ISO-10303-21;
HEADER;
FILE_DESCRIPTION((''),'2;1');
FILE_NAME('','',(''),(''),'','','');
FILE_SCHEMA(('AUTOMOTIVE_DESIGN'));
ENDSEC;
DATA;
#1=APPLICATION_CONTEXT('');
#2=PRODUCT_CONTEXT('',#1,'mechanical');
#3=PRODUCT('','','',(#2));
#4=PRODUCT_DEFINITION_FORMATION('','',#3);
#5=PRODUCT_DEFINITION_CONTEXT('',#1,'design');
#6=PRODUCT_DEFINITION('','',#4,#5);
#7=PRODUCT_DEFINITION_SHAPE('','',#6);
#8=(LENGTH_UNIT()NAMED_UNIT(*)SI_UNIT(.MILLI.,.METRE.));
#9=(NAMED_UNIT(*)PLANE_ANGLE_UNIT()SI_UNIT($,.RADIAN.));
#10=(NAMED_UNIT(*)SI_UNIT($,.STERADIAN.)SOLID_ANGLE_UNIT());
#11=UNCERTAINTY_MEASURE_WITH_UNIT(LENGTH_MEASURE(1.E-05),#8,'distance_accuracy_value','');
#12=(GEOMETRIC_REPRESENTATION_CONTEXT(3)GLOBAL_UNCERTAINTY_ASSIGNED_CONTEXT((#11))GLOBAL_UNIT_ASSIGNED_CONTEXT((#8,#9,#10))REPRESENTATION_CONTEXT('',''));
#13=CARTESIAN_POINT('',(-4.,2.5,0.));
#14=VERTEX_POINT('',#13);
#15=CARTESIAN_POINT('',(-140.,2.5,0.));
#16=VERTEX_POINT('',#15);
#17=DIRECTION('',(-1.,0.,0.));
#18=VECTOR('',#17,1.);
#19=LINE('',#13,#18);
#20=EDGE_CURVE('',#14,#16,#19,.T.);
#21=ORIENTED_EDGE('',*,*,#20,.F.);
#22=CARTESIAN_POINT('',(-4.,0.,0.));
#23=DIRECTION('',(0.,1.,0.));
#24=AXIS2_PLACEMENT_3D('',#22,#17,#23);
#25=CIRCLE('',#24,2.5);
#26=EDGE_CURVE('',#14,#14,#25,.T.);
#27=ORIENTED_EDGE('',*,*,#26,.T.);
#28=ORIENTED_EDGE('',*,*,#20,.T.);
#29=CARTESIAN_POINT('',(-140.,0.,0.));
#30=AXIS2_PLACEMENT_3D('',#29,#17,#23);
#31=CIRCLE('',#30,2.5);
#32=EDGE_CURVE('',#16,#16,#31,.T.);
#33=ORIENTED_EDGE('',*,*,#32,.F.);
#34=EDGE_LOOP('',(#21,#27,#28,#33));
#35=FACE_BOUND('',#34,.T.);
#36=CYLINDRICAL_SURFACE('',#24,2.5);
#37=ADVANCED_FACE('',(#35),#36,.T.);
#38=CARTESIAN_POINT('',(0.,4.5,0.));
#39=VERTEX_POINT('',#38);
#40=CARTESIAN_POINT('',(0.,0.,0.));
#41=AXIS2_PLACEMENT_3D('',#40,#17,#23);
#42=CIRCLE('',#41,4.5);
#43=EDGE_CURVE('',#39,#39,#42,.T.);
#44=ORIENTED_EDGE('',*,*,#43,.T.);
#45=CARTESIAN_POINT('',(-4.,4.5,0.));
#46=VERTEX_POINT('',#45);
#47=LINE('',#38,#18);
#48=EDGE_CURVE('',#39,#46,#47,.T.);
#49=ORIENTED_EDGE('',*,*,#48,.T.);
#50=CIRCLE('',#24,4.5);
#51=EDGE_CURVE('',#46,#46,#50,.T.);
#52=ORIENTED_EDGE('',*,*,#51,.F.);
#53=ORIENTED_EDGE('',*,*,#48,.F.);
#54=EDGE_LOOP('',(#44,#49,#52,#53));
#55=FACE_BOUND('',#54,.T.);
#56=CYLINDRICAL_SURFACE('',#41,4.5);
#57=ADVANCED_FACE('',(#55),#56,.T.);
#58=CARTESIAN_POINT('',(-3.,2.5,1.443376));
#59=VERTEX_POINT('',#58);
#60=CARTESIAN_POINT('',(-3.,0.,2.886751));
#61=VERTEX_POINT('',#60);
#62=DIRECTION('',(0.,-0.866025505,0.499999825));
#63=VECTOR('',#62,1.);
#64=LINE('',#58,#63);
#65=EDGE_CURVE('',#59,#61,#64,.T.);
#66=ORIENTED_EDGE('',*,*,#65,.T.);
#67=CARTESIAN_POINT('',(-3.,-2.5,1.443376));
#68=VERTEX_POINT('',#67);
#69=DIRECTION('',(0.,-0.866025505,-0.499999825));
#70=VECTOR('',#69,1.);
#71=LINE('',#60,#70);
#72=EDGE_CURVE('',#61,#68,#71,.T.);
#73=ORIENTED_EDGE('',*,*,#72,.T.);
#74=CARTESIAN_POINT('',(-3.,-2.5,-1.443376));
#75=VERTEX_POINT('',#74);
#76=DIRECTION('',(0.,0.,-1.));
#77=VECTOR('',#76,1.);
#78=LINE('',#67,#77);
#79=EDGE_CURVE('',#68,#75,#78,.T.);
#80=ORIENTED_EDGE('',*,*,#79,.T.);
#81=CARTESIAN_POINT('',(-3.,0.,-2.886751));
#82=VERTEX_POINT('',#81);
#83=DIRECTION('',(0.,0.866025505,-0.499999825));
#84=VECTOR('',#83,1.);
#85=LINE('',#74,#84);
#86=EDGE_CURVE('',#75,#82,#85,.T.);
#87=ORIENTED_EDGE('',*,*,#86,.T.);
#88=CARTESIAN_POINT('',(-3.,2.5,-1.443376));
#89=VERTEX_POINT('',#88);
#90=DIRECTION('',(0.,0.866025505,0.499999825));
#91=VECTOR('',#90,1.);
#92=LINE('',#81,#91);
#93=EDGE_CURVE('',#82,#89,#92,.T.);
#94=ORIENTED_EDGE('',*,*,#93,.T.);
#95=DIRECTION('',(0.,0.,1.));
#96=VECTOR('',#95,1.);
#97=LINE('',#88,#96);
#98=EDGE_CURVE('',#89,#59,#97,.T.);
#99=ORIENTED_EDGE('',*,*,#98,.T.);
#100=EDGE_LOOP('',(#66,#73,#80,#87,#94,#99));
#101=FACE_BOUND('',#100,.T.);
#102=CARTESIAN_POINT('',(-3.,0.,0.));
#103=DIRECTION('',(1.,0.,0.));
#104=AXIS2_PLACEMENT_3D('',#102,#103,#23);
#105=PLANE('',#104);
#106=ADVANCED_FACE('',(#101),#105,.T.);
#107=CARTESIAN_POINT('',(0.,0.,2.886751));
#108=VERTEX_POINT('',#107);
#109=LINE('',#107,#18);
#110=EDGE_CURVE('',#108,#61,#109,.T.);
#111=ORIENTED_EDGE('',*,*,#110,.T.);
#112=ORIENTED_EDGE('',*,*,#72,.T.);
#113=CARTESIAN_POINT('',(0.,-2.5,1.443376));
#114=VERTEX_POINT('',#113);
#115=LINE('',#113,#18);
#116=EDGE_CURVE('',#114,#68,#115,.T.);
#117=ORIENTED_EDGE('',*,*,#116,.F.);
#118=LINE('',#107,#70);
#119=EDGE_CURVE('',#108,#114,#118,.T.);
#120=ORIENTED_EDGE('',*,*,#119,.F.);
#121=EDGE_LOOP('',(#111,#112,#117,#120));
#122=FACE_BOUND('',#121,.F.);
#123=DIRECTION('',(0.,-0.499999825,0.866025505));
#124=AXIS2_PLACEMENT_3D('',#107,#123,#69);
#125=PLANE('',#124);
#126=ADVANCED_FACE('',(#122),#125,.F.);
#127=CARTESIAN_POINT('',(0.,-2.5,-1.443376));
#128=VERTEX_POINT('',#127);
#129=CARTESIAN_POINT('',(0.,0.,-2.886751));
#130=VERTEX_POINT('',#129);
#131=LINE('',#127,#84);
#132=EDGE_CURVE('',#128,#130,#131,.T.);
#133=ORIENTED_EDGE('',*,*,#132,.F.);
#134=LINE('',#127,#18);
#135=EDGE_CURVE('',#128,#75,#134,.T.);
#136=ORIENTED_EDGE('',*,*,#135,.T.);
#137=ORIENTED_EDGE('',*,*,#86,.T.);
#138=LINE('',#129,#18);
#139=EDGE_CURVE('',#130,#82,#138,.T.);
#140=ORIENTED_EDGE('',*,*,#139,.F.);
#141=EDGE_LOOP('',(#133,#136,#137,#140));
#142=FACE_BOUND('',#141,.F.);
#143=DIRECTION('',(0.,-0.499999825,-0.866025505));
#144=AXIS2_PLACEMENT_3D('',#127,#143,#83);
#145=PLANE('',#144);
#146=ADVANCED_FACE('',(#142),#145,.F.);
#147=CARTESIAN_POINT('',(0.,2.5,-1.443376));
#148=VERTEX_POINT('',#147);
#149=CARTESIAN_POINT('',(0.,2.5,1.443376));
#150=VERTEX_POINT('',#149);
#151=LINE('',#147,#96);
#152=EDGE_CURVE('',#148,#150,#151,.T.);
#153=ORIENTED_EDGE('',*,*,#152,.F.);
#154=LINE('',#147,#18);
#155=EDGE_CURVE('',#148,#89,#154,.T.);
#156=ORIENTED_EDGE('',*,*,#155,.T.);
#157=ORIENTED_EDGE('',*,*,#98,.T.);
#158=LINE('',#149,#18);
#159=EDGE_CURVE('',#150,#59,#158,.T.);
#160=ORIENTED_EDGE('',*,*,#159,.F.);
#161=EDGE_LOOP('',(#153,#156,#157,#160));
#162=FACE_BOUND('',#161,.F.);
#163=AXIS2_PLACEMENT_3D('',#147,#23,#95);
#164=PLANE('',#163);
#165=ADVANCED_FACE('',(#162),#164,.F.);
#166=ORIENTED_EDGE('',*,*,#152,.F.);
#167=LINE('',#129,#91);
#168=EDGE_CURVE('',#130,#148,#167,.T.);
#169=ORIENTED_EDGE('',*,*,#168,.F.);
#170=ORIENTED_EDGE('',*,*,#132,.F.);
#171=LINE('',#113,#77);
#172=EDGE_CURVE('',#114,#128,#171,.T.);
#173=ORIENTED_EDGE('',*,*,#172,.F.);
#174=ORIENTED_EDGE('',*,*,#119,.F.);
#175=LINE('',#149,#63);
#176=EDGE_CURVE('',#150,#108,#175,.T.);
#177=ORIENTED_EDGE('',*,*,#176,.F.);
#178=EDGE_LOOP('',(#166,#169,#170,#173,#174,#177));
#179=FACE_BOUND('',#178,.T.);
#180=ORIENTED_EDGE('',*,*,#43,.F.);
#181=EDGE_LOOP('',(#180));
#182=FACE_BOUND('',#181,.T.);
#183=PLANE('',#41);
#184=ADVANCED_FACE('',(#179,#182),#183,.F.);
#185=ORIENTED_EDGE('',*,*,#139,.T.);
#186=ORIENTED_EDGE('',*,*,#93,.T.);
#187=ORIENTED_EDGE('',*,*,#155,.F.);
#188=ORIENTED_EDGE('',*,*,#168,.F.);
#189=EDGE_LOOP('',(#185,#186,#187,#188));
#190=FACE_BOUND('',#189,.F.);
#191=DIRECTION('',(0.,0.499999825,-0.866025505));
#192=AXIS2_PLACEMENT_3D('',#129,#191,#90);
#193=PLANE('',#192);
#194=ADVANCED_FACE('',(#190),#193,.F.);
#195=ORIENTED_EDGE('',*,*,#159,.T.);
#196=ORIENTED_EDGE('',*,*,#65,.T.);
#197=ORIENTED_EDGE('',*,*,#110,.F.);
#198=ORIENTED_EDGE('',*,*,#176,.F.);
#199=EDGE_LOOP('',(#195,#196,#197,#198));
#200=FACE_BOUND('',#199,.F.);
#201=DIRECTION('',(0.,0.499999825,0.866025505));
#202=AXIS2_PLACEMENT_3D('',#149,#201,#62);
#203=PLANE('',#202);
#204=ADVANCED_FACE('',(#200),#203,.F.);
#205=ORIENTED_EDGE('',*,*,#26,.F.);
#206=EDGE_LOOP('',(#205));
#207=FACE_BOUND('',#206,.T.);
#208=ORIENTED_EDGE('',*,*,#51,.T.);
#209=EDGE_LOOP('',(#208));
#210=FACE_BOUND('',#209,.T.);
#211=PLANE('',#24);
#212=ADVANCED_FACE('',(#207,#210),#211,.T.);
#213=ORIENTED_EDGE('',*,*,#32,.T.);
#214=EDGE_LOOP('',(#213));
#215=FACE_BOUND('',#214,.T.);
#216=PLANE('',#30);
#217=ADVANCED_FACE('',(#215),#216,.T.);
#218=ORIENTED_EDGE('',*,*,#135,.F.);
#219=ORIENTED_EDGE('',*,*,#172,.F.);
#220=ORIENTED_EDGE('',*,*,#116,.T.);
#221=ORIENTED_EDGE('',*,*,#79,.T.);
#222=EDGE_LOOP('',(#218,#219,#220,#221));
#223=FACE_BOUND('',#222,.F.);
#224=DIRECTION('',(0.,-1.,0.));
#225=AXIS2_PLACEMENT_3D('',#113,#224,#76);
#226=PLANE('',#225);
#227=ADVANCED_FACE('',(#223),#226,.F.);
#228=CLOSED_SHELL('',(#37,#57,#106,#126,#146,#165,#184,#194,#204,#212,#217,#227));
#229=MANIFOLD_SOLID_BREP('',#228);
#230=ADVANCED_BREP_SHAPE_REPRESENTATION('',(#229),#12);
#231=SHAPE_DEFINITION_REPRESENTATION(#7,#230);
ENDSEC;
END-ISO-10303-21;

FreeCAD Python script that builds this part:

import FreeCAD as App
import Part
import Sketcher
from FreeCAD import Vector
Q = App.Units.Quantity


def add_polygon(sketch, points):
    """Adds a closed chain of lines whose ends are joined by coincident constraints."""
    first, n = sketch.GeometryCount, len(points)
    for a, b in zip(points, points[1:] + points[:1]):
        sketch.addGeometry(Part.LineSegment(App.Vector(*a, 0), App.Vector(*b, 0)), False)
    for i in range(n):
        sketch.addConstraint(Sketcher.Constraint("Coincident", first + i, 2, first + (i + 1) % n, 1))

doc = App.newDocument("Part")
body = doc.addObject("PartDesign::Body", "Body")

# Sketch on XY plane
sketch1 = doc.addObject("Sketcher::SketchObject", "Sketch")
body.addObject(sketch1)
sketch1.AttachmentSupport = (doc.XY_Plane, [""])
sketch1.MapMode = "FlatFace"
add_polygon(sketch1, [(-4, 2.5), (-140, 2.5), (-140, 0), (0, 0), (0, 4.5), (-4, 4.5)])  # lines 0-5
sketch1.addConstraint(Sketcher.Constraint("Horizontal", 0))
sketch1.addConstraint(Sketcher.Constraint("Vertical", 1))
sketch1.addConstraint(Sketcher.Constraint("Horizontal", 2))
sketch1.addConstraint(Sketcher.Constraint("Vertical", 3))
sketch1.addConstraint(Sketcher.Constraint("Horizontal", 4))
sketch1.addConstraint(Sketcher.Constraint("Vertical", 5))
sketch1.addConstraint(Sketcher.Constraint("Coincident", 2, 2, -1, 1))
sketch1.addConstraint(Sketcher.Constraint("DistanceX", 0, 2, 0, 1, 136.0))
sketch1.addConstraint(Sketcher.Constraint("DistanceX", 2, 1, 2, 2, 140.0))
sketch1.addConstraint(Sketcher.Constraint("DistanceY", 5, 2, 5, 1, 2.0))
sketch1.addConstraint(Sketcher.Constraint("DistanceY", 1, 2, 1, 1, 2.5))
revolution = doc.addObject("PartDesign::Revolution", "Revolution")
body.addObject(revolution)
revolution.Profile = sketch1
revolution.ReferenceAxis = (sketch1, ["H_Axis"])
revolution.Angle = 360

# Sketch on YZ plane
sketch2 = doc.addObject("Sketcher::SketchObject", "Sketch001")
body.addObject(sketch2)
sketch2.AttachmentSupport = (doc.YZ_Plane, [""])
sketch2.MapMode = "FlatFace"
add_polygon(sketch2, [(2.5, -1.4), (2.5, 1.4), (0, 2.9), (-2.5, 1.4), (-2.5, -1.4), (0, -2.9)])  # lines 0-5
sketch2.addConstraint(Sketcher.Constraint("Vertical", 0))
sketch2.addConstraint(Sketcher.Constraint("Vertical", 3))
sketch2.addConstraint(Sketcher.Constraint("Symmetric", 0, 2, 3, 2, -1, 1))
sketch2.addConstraint(Sketcher.Constraint("Symmetric", 1, 2, 4, 2, -1, 1))
sketch2.addConstraint(Sketcher.Constraint("PointOnObject", 1, 2, -2))
sketch2.addConstraint(Sketcher.Constraint("Parallel", 2, 5))
sketch2.addConstraint(Sketcher.Constraint("Horizontal", 0, 2, 2, 2))
sketch2.addConstraint(Sketcher.Constraint("Angle", 1, Q("150.000012 deg")))
sketch2.addConstraint(Sketcher.Constraint("DistanceX", 2, 2, 0, 2, 5.0))
sketch2.addConstraint(Sketcher.Constraint("DistanceY", 0, 1, 0, 2, 2.886752))
pocket1 = doc.addObject("PartDesign::Pocket", "Pocket")
body.addObject(pocket1)
pocket1.Profile = sketch2
pocket1.Length = 3

doc.recompute()
